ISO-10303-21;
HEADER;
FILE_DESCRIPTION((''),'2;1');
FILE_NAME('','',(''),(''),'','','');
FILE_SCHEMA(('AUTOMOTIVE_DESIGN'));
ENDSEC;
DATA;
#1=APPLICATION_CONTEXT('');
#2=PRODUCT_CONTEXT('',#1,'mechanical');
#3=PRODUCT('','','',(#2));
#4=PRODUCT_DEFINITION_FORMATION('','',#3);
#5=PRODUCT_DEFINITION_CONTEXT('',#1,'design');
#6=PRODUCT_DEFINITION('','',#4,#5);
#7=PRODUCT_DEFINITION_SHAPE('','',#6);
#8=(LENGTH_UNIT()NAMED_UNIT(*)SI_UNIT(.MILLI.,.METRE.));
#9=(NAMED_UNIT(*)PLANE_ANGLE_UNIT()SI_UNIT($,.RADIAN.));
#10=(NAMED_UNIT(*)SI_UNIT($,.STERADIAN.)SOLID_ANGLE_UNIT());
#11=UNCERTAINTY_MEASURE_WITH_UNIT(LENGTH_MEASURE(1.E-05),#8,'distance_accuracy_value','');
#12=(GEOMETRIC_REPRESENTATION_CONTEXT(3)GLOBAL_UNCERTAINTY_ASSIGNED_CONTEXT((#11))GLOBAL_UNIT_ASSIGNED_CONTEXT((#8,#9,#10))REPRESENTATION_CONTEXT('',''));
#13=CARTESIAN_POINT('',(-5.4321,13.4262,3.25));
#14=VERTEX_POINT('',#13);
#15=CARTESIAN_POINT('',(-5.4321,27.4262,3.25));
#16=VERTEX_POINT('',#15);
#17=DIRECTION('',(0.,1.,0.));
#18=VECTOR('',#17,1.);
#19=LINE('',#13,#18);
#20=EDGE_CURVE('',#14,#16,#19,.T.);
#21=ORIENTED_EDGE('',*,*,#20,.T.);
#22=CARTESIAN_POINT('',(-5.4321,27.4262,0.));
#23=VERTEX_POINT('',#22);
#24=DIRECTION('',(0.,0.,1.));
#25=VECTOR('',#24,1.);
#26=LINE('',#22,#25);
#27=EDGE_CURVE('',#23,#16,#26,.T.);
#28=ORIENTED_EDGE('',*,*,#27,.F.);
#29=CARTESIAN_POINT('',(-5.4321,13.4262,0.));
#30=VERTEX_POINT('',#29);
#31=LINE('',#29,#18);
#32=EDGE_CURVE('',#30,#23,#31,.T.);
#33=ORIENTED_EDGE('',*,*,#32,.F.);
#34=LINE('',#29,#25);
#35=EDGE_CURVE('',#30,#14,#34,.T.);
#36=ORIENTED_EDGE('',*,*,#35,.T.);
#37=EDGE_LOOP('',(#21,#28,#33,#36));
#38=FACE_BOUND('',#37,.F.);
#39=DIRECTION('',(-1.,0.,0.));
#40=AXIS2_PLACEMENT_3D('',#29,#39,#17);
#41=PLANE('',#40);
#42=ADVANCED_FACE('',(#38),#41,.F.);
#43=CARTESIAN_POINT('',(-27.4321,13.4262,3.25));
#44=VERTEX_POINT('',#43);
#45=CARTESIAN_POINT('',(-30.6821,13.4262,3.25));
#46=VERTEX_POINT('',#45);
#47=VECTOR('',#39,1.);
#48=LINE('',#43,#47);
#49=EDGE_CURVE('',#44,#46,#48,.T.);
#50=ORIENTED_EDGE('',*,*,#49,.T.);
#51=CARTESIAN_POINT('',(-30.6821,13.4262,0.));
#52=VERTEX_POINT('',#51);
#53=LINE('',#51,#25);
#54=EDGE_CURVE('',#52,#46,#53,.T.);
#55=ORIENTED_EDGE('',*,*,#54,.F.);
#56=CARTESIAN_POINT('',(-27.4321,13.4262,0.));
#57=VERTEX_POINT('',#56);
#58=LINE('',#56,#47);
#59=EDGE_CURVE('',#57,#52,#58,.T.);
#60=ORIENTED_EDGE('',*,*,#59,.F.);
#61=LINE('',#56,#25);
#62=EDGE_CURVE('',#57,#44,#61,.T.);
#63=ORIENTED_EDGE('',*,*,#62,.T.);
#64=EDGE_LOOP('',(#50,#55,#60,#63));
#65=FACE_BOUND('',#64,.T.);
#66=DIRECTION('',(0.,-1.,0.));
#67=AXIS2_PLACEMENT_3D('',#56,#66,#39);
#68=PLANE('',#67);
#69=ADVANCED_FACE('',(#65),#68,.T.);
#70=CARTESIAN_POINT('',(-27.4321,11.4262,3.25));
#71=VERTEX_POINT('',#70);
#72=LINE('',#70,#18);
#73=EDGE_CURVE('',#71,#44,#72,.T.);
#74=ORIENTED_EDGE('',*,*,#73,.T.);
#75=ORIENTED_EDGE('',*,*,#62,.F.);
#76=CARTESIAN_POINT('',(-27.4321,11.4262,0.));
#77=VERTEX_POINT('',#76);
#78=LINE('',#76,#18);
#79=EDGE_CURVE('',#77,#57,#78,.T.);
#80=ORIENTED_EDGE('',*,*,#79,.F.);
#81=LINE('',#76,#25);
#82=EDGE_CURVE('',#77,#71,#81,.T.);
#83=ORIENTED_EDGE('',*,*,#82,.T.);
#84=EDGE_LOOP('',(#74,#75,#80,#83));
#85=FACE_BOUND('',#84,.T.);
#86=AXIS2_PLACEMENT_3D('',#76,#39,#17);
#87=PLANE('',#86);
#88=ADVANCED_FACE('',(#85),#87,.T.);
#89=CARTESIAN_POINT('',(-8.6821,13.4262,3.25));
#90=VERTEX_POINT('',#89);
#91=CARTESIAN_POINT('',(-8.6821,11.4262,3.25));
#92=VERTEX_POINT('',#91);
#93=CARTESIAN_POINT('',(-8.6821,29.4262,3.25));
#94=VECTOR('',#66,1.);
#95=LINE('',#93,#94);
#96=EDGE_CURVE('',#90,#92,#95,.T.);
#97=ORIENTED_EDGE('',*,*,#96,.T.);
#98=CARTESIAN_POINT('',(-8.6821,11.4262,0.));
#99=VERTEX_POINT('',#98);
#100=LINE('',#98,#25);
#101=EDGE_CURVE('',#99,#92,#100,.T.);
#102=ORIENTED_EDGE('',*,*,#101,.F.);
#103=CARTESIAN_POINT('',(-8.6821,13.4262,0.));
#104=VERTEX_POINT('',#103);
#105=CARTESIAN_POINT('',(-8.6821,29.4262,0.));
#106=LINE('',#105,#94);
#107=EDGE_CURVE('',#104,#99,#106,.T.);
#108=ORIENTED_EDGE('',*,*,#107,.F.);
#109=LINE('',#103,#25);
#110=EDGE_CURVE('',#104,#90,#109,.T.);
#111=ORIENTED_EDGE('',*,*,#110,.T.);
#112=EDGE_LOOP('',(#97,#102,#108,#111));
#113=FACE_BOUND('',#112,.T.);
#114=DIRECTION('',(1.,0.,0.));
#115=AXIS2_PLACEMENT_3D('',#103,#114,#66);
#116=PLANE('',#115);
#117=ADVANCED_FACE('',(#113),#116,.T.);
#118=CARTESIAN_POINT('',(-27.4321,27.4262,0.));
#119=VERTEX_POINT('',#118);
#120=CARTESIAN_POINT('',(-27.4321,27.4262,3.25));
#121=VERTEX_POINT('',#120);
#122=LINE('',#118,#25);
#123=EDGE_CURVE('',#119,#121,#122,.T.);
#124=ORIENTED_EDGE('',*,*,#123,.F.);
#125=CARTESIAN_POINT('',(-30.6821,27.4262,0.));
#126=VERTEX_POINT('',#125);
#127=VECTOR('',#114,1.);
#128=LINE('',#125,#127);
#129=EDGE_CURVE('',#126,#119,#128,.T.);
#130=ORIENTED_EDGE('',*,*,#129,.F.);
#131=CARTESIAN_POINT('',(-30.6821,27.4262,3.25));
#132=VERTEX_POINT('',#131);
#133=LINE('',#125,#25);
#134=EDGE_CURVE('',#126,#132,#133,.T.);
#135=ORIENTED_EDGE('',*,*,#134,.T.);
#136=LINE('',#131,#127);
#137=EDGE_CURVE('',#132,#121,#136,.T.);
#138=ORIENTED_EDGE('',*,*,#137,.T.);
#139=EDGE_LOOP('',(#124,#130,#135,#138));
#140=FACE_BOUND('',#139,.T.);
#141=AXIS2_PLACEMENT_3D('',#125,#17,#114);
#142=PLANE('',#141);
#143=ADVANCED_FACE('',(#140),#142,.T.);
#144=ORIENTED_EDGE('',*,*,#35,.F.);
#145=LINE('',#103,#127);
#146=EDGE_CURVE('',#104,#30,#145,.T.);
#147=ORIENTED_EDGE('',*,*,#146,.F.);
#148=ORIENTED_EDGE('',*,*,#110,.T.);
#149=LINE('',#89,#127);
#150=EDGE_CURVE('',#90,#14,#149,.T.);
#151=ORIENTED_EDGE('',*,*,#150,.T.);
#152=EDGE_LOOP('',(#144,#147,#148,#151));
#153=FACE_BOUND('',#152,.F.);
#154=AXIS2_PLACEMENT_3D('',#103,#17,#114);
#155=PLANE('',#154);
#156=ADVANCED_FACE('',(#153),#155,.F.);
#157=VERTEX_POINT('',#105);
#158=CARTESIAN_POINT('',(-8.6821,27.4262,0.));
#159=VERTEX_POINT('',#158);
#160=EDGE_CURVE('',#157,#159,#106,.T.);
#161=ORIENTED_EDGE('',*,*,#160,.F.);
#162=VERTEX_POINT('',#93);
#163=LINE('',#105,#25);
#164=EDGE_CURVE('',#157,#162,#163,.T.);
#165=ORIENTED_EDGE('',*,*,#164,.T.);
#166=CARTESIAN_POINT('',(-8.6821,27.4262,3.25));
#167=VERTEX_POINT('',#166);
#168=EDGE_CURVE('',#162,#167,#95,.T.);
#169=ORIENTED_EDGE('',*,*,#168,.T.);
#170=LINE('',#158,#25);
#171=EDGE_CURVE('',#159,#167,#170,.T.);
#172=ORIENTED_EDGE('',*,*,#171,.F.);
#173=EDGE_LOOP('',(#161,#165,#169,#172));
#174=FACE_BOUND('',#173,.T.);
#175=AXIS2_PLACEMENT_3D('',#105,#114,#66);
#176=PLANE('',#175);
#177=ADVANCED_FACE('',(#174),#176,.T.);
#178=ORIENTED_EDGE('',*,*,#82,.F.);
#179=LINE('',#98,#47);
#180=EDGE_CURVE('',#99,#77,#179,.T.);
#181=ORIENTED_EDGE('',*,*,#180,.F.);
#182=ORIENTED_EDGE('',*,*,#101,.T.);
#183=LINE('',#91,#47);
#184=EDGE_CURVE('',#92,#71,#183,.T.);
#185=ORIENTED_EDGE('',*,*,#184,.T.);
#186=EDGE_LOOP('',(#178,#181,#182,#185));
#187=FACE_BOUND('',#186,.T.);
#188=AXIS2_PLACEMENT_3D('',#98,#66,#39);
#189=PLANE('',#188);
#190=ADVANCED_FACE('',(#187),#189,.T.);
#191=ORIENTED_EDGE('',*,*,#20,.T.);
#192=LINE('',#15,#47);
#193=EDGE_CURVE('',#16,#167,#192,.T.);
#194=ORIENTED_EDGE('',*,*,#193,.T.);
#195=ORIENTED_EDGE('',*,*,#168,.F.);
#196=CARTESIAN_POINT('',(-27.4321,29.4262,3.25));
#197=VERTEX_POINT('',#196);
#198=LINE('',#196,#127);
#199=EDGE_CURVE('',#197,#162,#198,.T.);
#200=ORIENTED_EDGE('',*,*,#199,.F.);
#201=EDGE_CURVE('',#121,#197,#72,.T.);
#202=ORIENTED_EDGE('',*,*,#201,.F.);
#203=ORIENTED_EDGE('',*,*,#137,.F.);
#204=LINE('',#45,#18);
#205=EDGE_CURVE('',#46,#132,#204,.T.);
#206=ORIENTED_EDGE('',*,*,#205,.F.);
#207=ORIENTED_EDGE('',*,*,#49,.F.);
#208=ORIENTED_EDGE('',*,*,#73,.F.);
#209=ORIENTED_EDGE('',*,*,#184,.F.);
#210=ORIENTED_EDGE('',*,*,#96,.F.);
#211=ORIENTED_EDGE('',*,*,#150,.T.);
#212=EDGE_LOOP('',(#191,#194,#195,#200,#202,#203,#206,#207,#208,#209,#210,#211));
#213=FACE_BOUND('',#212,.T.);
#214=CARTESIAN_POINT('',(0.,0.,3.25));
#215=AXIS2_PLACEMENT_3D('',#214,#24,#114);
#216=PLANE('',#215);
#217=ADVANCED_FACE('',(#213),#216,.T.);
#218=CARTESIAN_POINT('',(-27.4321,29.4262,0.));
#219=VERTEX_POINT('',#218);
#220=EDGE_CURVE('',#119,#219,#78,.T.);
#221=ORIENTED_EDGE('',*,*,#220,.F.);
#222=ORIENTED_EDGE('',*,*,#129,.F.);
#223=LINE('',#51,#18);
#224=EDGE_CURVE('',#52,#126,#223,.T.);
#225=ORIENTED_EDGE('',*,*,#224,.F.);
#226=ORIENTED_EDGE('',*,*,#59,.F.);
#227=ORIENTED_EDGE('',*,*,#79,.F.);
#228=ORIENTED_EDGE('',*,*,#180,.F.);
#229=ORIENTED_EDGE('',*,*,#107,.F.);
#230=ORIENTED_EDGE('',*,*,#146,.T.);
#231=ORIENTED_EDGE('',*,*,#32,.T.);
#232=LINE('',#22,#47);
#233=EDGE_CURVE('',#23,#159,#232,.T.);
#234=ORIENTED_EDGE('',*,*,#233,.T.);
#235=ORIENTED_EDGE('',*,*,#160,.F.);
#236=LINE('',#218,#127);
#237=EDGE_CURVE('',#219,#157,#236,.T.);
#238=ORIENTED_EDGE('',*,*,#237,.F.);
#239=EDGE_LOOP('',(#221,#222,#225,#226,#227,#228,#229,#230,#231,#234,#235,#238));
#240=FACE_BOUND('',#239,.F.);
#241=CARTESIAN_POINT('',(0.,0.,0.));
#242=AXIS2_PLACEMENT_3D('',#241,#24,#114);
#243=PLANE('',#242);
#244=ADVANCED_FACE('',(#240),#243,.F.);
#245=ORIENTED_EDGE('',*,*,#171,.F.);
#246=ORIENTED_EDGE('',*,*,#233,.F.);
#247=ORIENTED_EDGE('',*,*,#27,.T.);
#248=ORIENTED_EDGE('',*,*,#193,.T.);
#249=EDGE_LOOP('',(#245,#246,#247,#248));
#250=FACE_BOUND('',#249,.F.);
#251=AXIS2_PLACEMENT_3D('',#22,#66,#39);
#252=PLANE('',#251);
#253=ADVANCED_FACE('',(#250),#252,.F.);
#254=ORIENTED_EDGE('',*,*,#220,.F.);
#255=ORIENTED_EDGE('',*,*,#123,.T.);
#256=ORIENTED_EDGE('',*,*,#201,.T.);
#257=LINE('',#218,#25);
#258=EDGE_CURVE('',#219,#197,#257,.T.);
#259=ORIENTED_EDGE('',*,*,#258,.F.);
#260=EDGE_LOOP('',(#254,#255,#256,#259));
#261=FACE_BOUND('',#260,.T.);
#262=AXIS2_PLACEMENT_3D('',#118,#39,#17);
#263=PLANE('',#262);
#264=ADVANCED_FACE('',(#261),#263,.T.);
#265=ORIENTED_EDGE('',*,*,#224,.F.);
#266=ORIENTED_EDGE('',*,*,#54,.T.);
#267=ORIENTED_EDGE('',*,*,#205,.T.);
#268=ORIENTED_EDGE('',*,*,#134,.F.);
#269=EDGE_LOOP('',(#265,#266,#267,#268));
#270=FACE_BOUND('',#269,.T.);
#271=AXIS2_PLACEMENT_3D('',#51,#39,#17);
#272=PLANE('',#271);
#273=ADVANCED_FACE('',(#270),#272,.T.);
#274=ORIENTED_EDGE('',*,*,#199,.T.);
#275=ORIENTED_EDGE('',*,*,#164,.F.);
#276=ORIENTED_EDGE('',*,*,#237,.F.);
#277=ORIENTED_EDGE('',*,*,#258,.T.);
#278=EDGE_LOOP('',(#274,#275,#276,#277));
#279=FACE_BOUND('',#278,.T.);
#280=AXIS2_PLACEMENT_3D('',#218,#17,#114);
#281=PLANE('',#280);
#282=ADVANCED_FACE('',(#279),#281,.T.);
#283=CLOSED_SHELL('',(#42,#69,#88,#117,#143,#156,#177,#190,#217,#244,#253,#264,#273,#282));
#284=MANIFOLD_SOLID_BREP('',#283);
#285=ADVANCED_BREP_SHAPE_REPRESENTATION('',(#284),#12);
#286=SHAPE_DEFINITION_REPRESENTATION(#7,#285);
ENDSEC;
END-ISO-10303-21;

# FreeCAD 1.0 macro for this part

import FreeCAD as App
import Part
import Sketcher

V = App.Vector

doc = App.newDocument("Part")
params = doc.addObject("Spreadsheet::Sheet", "Params")
for row, (alias, value) in enumerate([
    ("sketch1_height", "14 mm"),
    ("sketch1_width", "18.75 mm"),
    ("sketch1_width2", "3.25 mm"),
    ("pad1_length", "3.25 mm"),
], start=1):
    params.set(f"A{row}", alias)
    params.set(f"B{row}", "=" + value)
    params.setAlias(f"B{row}", alias)

body = doc.addObject("PartDesign::Body", "Body")

sketch1 = doc.addObject("Sketcher::SketchObject", "Sketch")
body.addObject(sketch1)
sketch1.AttachmentSupport = (doc.XY_Plane, [""])
sketch1.MapMode = "FlatFace"
sketch1.addGeometry([
    Part.LineSegment(V(-8.7, 29.4, 0), V(-27.4, 29.4, 0)),
    Part.LineSegment(V(-27.4, 29.4, 0), V(-27.4, 27.4, 0)),
    Part.LineSegment(V(-27.4, 27.4, 0), V(-30.7, 27.4, 0)),
    Part.LineSegment(V(-30.7, 27.4, 0), V(-30.7, 13.4, 0)),
    Part.LineSegment(V(-30.7, 13.4, 0), V(-27.4, 13.4, 0)),
    Part.LineSegment(V(-27.4, 13.4, 0), V(-27.4, 11.4, 0)),
    Part.LineSegment(V(-27.4, 11.4, 0), V(-8.7, 11.4, 0)),
    Part.LineSegment(V(-8.7, 11.4, 0), V(-8.7, 13.4, 0)),
    Part.LineSegment(V(-8.7, 13.4, 0), V(-5.4, 13.4, 0)),
    Part.LineSegment(V(-5.4, 13.4, 0), V(-5.4, 27.4, 0)),
    Part.LineSegment(V(-5.4, 27.4, 0), V(-8.7, 27.4, 0)),
    Part.LineSegment(V(-8.7, 27.4, 0), V(-8.7, 29.4, 0)),
], False)
sketch1.addConstraint([
    Sketcher.Constraint("Coincident", 0, 2, 1, 1),
    Sketcher.Constraint("Coincident", 1, 2, 2, 1),
    Sketcher.Constraint("Coincident", 2, 2, 3, 1),
    Sketcher.Constraint("Coincident", 3, 2, 4, 1),
    Sketcher.Constraint("Coincident", 4, 2, 5, 1),
    Sketcher.Constraint("Coincident", 5, 2, 6, 1),
    Sketcher.Constraint("Coincident", 6, 2, 7, 1),
    Sketcher.Constraint("Coincident", 7, 2, 8, 1),
    Sketcher.Constraint("Coincident", 8, 2, 9, 1),
    Sketcher.Constraint("Coincident", 9, 2, 10, 1),
    Sketcher.Constraint("Coincident", 10, 2, 11, 1),
    Sketcher.Constraint("Coincident", 11, 2, 0, 1),
    Sketcher.Constraint("Horizontal", 0),
    Sketcher.Constraint("Vertical", 1),
    Sketcher.Constraint("Horizontal", 2),
    Sketcher.Constraint("Vertical", 3),
    Sketcher.Constraint("Horizontal", 4),
    Sketcher.Constraint("Vertical", 5),
    Sketcher.Constraint("Horizontal", 6),
    Sketcher.Constraint("Vertical", 7),
    Sketcher.Constraint("Horizontal", 8),
    Sketcher.Constraint("Vertical", 9),
    Sketcher.Constraint("Horizontal", 10),
    Sketcher.Constraint("Vertical", 11),
    Sketcher.Constraint("Horizontal", 4, 2, 7, 2),
    Sketcher.Constraint("Horizontal", 2, 2, 9, 2),
    Sketcher.Constraint("Vertical", 1, 2, 4, 2),
    Sketcher.Constraint("Vertical", 7, 2, 10, 2),
    Sketcher.Constraint("Equal", 4, 8),
    Sketcher.Constraint("Equal", 1, 5),
    Sketcher.Constraint("DistanceY", 3, 2, 3, 1, 14.0),
    Sketcher.Constraint("DistanceY", 5, 2, 0, 2, 18.0),
    Sketcher.Constraint("DistanceX", 0, 2, 0, 1, 18.75),
    Sketcher.Constraint("DistanceX", 2, 2, 2, 1, 3.25),
    Sketcher.Constraint("DistanceX", 0, 2, -1, 1, 27.432),
    Sketcher.Constraint("DistanceY", -1, 1, 0, 2, 29.4262),
])
sketch1.setExpression("Constraints[30]", "Params.sketch1_height")
sketch1.setExpression("Constraints[32]", "Params.sketch1_width")
sketch1.setExpression("Constraints[33]", "Params.sketch1_width2")
pad1 = doc.addObject("PartDesign::Pad", "Pad")
body.addObject(pad1)
pad1.Profile = sketch1
pad1.setExpression("Length", "Params.pad1_length")

doc.recompute()
